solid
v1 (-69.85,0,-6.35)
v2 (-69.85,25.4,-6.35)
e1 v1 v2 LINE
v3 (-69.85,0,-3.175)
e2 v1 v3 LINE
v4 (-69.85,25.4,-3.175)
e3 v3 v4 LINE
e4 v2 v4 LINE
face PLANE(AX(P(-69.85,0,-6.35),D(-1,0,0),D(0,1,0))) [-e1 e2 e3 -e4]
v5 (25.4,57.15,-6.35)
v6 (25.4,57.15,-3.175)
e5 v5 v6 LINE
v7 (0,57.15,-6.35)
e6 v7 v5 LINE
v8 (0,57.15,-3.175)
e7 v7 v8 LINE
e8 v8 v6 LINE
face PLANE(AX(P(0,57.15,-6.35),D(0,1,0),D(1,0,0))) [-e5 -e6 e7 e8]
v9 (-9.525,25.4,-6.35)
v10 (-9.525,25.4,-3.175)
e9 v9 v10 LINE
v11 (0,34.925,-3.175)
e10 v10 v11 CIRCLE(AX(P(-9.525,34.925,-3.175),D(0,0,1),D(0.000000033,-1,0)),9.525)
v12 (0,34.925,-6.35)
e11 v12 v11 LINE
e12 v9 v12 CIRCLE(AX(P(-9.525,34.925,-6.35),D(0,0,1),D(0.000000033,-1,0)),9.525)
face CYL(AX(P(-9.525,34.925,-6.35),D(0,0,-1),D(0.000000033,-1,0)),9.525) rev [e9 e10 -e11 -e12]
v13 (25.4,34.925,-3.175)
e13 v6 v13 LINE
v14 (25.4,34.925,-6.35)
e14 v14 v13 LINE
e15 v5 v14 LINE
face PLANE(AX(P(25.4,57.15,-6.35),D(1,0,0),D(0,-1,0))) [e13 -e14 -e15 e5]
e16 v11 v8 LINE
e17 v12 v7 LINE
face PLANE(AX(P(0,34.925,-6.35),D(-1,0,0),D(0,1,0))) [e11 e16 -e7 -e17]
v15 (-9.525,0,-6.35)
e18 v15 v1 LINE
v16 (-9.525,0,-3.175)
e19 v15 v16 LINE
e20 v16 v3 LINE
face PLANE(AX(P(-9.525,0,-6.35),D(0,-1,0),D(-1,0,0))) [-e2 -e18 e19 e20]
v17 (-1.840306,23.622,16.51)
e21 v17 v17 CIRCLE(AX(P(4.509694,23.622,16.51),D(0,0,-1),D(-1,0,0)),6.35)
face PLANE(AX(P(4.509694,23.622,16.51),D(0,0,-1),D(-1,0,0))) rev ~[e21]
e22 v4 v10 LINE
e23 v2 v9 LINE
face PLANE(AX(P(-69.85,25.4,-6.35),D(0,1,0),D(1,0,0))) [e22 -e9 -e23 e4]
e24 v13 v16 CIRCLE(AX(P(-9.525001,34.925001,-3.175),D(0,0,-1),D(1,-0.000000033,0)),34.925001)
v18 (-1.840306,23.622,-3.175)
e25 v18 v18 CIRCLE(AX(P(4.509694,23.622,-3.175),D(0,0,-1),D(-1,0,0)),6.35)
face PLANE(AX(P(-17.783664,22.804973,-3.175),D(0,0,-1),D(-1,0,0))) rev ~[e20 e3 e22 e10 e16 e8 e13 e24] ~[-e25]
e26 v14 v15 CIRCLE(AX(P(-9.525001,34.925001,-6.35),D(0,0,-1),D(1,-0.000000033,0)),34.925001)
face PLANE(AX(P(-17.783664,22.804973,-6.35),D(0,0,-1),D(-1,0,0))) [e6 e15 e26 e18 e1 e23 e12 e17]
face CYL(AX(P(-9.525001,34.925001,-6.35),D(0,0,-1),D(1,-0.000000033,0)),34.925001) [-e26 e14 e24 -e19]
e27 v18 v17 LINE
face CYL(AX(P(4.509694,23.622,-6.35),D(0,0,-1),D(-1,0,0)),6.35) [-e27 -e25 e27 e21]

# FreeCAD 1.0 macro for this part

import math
import FreeCAD as App
import Part
import Sketcher
Q = App.Units.Quantity

doc = App.newDocument("Part")
body = doc.addObject("PartDesign::Body", "Body")

sketch1 = body.newObject("Sketcher::SketchObject", "Sketch")
sketch1.AttachmentSupport = (doc.getObject("XY_Plane"), [""])
sketch1.MapMode = "FlatFace"
sketch1.addGeometry(Part.Circle(App.Vector(-4.509694, 23.622, 0), App.Vector(0, 0, 1), 6.35), False)
sketch1.addConstraint([
    Sketcher.Constraint("Diameter", 0, Q("0.5 in")),
    Sketcher.Constraint("DistanceY", -1, 1, 0, 3, Q("0.93 in")),
    Sketcher.Constraint("DistanceX", 0, 3, -1, 1, Q("4.509694 mm")),
])
pad1 = body.newObject("PartDesign::Pad", "Pad")
pad1.Profile = sketch1
pad1.Length = Q("0.9 in")
pad1.Reversed = True

sketch2 = body.newObject("Sketcher::SketchObject", "Sketch001")
sketch2.AttachmentSupport = (doc.getObject("XY_Plane"), [""])
sketch2.MapMode = "FlatFace"
sketch2.addGeometry([
    Part.LineSegment(App.Vector(0, 57.15, 0), App.Vector(-25.4, 57.15, 0)),
    Part.LineSegment(App.Vector(-25.4, 57.15, 0), App.Vector(-25.4, 34.925, 0)),
    Part.ArcOfCircle(Part.Circle(App.Vector(9.525001, 34.925001, 0), App.Vector(0, 0, 1), 34.925001), math.radians(-179.999998), math.radians(-90.000002)),
    Part.LineSegment(App.Vector(9.525, 0, 0), App.Vector(69.85, 0, 0)),
    Part.LineSegment(App.Vector(69.85, 0, 0), App.Vector(69.85, 25.4, 0)),
    Part.LineSegment(App.Vector(69.85, 25.4, 0), App.Vector(9.525, 25.4, 0)),
    Part.ArcOfCircle(Part.Circle(App.Vector(9.525, 34.925, 0), App.Vector(0, 0, 1), 9.525), math.radians(-179.999998), math.radians(-90.000002)),
    Part.LineSegment(App.Vector(0, 34.925, 0), App.Vector(0, 57.15, 0)),
    Part.Circle(App.Vector(-4.509694, 23.622, 0), App.Vector(0, 0, 1), 6.35),
], False)
sketch2.addConstraint([
    Sketcher.Constraint("Coincident", 0, 2, 1, 1),
    Sketcher.Constraint("Tangent", 1, 2, 2, 1),
    Sketcher.Constraint("Tangent", 2, 2, 3, 1),
    Sketcher.Constraint("Coincident", 3, 2, 4, 1),
    Sketcher.Constraint("Coincident", 4, 2, 5, 1),
    Sketcher.Constraint("Tangent", 5, 2, 6, 2),
    Sketcher.Constraint("Tangent", 6, 1, 7, 1),
    Sketcher.Constraint("Coincident", 7, 2, 0, 1),
    Sketcher.Constraint("Horizontal", 0),
    Sketcher.Constraint("Vertical", 1),
    Sketcher.Constraint("Horizontal", 3),
    Sketcher.Constraint("Vertical", 4),
    Sketcher.Constraint("Horizontal", 5),
    Sketcher.Constraint("Vertical", 7),
    Sketcher.Constraint("Coincident", 6, 3, 2, 3),
    Sketcher.Constraint("PointOnObject", 2, 2, -1),
    Sketcher.Constraint("PointOnObject", 6, 1, -2),
    Sketcher.Constraint("Diameter", 8, Q("0.5 in")),
    Sketcher.Constraint("DistanceX", 0, 2, 0, 1, Q("1 in")),
    Sketcher.Constraint("Radius", 2, Q("1.375 in")),
    Sketcher.Constraint("DistanceX", 3, 1, 3, 2, Q("2.375 in")),
    Sketcher.Constraint("DistanceY", 1, 2, 1, 1, Q("0.875 in")),
    Sketcher.Constraint("DistanceY", -1, 1, 8, 3, Q("0.93 in")),
    Sketcher.Constraint("DistanceX", 8, 3, -1, 1, Q("4.509694 mm")),
])
pad2 = body.newObject("PartDesign::Pad", "Pad001")
pad2.Profile = sketch2
pad2.Length = Q("0.125 in")
pad2.Reversed = True
body2 = doc.addObject("PartDesign::Body", "Body001")
doc.recompute()

body.Placement = App.Placement(App.Vector(0, 0, -6.35), App.Rotation(App.Vector(0, 1, 0), 180))
boolean = body2.newObject("PartDesign::Boolean", "Boolean")
boolean.Type = "Fuse"
boolean.addObjects([body])

doc.recompute()
